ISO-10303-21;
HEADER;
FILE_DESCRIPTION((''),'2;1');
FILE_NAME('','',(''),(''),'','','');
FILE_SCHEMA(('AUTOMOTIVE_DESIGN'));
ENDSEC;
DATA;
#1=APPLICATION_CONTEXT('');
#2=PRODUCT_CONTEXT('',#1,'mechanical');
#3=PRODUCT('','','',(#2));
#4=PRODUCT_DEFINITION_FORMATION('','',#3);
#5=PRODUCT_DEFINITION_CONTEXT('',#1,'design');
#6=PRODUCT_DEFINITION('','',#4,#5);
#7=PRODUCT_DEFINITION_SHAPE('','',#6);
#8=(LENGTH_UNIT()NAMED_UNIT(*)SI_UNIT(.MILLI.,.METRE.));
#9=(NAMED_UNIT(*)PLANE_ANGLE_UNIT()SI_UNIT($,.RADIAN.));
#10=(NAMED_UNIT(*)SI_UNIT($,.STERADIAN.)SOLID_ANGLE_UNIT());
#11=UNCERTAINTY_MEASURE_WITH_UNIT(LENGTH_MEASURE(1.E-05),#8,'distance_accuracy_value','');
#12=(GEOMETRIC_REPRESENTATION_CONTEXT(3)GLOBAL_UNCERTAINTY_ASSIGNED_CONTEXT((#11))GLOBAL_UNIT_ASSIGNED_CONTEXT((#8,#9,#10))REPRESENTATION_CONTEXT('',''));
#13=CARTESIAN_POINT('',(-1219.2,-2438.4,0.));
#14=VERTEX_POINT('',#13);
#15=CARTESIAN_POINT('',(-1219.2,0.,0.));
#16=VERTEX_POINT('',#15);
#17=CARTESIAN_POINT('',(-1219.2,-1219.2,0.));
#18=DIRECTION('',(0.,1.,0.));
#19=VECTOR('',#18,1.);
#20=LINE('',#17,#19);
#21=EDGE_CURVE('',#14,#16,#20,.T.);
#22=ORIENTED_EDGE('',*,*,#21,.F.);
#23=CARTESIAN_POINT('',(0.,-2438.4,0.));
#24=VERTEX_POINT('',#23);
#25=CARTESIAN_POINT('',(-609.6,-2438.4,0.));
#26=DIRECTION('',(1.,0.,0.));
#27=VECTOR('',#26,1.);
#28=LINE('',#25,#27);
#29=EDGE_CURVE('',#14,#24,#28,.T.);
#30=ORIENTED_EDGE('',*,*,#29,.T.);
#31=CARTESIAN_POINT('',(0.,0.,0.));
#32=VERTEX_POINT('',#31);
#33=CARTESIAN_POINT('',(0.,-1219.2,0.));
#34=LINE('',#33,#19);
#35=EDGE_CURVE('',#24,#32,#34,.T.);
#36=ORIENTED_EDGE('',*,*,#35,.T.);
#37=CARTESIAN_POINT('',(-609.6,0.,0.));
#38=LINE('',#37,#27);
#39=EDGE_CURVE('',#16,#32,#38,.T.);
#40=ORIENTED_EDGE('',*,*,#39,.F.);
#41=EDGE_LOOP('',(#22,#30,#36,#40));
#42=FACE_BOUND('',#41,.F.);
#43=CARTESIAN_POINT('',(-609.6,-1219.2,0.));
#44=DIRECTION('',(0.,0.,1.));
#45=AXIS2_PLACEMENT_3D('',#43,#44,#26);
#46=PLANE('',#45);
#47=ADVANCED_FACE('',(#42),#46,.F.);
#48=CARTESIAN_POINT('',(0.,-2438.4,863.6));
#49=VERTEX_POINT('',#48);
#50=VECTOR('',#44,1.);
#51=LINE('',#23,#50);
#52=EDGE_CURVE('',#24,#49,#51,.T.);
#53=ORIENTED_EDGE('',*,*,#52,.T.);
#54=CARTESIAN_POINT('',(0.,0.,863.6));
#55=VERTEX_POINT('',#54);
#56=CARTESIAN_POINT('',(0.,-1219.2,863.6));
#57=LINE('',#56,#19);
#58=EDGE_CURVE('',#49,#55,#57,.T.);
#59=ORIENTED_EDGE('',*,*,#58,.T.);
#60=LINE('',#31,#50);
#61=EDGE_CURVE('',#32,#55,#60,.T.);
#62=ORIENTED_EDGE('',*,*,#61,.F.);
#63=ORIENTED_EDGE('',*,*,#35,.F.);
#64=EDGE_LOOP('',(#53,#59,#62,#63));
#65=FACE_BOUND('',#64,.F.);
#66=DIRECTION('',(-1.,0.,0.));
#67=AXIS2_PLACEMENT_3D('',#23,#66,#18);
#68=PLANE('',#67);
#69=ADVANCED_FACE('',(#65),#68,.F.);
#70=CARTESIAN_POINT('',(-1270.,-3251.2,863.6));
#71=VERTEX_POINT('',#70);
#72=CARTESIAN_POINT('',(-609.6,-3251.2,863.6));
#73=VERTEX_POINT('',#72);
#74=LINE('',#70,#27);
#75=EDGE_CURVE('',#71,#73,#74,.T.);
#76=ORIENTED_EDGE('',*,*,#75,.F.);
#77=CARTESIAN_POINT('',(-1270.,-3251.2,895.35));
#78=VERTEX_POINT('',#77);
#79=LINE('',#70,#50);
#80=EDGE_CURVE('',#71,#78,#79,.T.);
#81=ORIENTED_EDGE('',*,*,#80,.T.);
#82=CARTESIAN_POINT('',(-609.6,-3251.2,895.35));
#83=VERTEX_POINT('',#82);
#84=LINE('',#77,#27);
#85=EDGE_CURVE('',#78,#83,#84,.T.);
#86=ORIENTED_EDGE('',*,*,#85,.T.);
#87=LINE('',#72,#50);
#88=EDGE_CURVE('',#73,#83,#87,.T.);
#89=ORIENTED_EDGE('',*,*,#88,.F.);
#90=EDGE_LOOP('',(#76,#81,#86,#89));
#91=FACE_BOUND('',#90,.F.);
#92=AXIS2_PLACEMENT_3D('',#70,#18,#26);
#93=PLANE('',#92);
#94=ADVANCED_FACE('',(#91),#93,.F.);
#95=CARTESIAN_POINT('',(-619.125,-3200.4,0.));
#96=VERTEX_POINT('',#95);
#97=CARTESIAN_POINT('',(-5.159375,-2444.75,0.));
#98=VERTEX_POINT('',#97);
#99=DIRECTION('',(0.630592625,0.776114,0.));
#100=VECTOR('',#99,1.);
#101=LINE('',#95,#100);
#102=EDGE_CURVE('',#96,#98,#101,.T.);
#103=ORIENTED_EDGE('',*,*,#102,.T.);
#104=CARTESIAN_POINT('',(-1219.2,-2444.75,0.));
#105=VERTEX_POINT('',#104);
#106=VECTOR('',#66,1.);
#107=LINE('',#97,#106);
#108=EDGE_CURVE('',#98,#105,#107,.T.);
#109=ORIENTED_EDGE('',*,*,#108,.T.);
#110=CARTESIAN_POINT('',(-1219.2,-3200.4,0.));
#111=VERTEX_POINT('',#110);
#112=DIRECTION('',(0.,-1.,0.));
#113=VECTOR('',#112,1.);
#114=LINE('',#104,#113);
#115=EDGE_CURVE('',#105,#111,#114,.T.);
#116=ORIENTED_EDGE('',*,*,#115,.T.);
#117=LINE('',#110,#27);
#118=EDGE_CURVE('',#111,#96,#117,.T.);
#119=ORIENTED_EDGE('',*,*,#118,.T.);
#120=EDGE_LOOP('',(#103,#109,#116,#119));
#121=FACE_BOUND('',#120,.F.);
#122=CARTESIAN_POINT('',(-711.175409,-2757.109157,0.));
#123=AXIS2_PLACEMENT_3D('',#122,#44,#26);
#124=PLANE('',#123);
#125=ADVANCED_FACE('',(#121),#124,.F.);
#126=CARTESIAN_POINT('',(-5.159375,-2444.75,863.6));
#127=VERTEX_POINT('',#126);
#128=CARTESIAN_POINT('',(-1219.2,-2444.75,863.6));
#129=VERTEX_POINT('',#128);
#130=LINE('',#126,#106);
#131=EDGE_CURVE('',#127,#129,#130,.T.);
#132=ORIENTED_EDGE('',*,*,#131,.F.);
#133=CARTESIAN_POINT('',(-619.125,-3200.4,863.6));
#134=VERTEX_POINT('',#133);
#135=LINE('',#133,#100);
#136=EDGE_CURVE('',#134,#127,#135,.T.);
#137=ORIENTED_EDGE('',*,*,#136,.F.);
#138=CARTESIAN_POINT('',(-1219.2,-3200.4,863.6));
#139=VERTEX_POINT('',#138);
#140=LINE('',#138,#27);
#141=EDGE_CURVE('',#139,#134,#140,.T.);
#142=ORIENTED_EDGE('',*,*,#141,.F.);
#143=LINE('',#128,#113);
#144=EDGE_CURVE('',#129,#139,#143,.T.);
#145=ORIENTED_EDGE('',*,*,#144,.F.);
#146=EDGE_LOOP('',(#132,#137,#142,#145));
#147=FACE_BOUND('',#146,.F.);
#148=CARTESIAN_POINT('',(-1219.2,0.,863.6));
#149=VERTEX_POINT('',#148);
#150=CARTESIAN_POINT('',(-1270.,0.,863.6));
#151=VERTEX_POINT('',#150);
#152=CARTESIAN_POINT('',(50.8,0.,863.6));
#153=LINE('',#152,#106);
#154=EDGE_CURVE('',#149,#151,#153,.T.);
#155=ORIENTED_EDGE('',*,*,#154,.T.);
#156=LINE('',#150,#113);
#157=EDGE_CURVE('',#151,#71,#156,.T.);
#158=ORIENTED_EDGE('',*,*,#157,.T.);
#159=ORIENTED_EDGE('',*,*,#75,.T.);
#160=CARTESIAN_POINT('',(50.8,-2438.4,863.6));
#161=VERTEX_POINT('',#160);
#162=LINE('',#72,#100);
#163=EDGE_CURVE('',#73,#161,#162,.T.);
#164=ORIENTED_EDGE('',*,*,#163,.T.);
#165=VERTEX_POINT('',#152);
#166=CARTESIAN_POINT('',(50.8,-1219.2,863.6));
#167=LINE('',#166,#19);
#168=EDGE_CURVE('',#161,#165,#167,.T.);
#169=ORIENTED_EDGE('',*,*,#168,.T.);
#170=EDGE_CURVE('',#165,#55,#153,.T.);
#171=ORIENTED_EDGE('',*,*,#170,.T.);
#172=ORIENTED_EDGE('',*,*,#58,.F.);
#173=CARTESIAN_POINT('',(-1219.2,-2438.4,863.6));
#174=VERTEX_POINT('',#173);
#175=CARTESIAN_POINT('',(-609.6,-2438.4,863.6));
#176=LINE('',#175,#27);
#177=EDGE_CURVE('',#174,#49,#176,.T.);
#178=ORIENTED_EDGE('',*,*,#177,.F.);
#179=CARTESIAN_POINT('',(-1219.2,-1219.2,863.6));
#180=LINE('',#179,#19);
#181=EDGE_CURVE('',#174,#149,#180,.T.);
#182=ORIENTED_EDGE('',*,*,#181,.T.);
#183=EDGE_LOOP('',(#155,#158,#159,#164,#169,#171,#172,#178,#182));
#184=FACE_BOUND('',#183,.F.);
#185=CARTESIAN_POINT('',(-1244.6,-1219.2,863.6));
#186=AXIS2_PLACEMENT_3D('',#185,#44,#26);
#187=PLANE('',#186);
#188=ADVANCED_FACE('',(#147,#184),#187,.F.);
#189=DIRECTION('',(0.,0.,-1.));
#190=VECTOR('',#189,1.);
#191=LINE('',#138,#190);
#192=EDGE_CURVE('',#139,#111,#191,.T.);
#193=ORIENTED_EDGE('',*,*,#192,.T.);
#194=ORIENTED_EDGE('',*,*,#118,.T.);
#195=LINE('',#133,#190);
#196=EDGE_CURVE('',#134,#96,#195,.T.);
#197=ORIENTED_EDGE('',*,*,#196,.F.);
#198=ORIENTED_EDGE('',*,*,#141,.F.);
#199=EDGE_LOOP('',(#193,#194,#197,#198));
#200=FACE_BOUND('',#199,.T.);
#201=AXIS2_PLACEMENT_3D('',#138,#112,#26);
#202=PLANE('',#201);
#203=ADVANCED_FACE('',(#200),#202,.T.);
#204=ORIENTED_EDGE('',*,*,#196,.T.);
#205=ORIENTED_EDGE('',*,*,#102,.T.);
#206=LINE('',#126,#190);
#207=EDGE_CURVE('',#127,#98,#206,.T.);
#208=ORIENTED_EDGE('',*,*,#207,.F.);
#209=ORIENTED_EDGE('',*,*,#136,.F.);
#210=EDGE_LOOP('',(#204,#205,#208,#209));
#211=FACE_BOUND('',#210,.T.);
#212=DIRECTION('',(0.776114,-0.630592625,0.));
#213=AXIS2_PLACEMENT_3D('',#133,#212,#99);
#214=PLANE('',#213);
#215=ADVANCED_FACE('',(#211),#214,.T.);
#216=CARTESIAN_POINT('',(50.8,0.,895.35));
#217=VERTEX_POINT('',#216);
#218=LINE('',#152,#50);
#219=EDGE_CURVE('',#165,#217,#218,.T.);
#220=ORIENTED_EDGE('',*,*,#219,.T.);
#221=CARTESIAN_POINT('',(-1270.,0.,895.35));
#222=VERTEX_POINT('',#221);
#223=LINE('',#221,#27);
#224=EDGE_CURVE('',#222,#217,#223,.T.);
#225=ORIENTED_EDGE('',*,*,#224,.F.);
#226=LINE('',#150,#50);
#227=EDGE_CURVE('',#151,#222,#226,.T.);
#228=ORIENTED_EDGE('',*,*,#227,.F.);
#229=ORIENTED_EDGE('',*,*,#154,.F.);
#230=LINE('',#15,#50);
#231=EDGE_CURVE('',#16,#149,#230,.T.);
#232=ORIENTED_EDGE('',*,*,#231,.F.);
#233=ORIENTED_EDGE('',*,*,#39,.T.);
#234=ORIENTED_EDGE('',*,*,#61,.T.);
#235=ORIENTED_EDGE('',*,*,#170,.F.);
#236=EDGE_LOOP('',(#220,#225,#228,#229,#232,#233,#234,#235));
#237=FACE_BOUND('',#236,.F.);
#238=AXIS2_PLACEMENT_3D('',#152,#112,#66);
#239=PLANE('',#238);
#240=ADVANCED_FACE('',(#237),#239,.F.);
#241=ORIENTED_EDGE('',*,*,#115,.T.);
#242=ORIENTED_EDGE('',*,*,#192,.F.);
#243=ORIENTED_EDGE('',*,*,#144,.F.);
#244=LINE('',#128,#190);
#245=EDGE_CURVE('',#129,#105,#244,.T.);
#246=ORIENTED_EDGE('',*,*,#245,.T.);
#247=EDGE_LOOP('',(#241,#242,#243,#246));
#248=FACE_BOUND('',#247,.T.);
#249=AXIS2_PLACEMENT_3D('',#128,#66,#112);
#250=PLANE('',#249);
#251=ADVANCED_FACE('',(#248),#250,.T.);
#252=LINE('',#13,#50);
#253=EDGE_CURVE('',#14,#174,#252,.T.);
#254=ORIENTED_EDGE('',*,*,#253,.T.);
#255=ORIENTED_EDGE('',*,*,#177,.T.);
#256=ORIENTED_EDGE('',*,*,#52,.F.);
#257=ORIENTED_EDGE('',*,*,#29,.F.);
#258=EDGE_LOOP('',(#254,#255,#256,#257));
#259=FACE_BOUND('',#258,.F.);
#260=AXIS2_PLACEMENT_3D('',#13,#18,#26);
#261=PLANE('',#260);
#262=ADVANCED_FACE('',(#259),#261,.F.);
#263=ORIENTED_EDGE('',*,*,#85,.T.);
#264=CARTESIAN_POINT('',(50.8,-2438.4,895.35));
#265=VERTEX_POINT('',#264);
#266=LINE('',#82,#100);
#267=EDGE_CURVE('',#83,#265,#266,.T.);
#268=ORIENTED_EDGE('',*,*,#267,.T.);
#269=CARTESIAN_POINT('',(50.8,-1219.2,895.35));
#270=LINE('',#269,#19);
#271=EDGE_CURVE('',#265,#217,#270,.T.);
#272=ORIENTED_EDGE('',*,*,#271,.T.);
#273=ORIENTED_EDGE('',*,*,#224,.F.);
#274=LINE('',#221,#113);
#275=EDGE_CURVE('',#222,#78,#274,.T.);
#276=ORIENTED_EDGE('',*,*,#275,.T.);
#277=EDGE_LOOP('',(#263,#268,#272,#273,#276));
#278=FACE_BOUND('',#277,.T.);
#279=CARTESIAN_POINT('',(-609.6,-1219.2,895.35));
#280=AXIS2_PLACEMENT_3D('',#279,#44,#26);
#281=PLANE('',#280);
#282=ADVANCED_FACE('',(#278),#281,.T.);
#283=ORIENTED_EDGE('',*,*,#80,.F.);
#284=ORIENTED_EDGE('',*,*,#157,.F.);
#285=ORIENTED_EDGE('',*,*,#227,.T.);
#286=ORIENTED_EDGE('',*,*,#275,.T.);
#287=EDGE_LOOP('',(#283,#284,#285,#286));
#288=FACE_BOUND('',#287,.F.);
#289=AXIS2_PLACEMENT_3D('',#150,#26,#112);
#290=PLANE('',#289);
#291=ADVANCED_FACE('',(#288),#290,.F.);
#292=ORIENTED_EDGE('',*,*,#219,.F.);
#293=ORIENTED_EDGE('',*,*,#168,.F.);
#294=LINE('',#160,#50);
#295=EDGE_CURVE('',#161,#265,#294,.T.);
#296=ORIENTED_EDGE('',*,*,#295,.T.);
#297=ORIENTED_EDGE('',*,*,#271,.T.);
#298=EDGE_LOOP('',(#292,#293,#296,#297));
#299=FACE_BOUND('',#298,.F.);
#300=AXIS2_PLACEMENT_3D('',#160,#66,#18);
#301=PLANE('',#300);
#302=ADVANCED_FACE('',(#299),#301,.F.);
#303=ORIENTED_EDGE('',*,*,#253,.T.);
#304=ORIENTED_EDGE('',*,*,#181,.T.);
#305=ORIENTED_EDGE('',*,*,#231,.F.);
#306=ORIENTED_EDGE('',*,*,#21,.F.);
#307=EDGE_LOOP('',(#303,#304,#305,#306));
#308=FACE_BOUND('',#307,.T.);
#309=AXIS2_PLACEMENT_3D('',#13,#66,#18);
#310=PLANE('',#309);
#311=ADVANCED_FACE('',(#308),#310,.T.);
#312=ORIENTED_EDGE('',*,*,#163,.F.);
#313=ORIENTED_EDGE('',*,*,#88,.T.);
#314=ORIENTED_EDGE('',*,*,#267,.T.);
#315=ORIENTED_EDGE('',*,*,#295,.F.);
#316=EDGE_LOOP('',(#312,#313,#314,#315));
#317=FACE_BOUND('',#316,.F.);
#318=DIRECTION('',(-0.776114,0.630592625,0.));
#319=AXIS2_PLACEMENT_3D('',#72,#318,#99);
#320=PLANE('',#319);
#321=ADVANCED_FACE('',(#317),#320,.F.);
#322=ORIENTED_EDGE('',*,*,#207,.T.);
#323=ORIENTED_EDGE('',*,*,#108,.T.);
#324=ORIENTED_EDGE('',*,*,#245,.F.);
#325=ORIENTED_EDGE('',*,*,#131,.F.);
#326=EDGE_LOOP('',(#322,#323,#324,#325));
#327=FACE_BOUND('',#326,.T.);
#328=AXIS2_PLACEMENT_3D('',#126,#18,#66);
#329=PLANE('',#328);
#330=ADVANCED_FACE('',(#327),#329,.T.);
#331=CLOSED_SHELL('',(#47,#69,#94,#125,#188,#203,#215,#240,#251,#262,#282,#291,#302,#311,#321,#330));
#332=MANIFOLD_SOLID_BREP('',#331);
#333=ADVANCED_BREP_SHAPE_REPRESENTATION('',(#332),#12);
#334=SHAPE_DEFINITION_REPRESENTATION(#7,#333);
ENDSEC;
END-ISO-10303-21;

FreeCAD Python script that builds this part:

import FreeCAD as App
import Part
import Sketcher
Q = App.Units.Quantity


def add_polygon(sketch, points):
    """Adds a closed chain of lines whose ends are joined by coincident constraints."""
    first, n = sketch.GeometryCount, len(points)
    for a, b in zip(points, points[1:] + points[:1]):
        sketch.addGeometry(Part.LineSegment(App.Vector(*a, 0), App.Vector(*b, 0)), False)
    for i in range(n):
        sketch.addConstraint(Sketcher.Constraint("Coincident", first + i, 2, first + (i + 1) % n, 1))

doc = App.newDocument("Part")
params = doc.addObject("Spreadsheet::Sheet", "Params")
for row, (alias, value) in enumerate([
    ("sketch1_width", "48 in"),
    ("sketch1_height", "96 in"),
    ("pad1_length", "34 in"),
    ("sketch2_width", "52 in"),
    ("sketch2_width2", "26 in"),
    ("sketch2_height", "128 in"),
    ("sketch2_height2", "96 in"),
    ("pad2_length", "1.25 in"),
    ("sketch3_width", "48 in"),
    ("sketch3_height", "96 in"),
    ("pad3_length", "1.25 in"),
    ("sketch4_height", "29.75 in"),
    ("sketch4_width", "47.796875 in"),
    ("sketch4_width2", "23.625 in"),
    ("pad4_length", "34 in"),
], start=1):
    params.set(f"A{row}", alias)
    params.set(f"B{row}", "=" + value)
    params.setAlias(f"B{row}", alias)

body = doc.addObject("PartDesign::Body", "Body")

# Sketch on XY plane
sketch1 = doc.addObject("Sketcher::SketchObject", "Sketch")
body.addObject(sketch1)
sketch1.AttachmentSupport = (doc.XY_Plane, [""])
sketch1.MapMode = "FlatFace"
add_polygon(sketch1, [(-1219, 0), (-1219, -2438), (0, -2438), (0, 0)])  # lines 0-3
sketch1.addConstraint([
    Sketcher.Constraint("Vertical", 0),
    Sketcher.Constraint("Horizontal", 1),
    Sketcher.Constraint("Vertical", 2),
    Sketcher.Constraint("Horizontal", 3),
    Sketcher.Constraint("Coincident", 2, 2, -1, 1),
    Sketcher.Constraint("DistanceX", 1, 1, 1, 2, Q("48 in")),
    Sketcher.Constraint("DistanceY", 0, 2, 0, 1, Q("96 in")),
])
sketch1.setExpression("Constraints[9]", "Params.sketch1_width")
sketch1.setExpression("Constraints[10]", "Params.sketch1_height")
pad1 = doc.addObject("PartDesign::Pad", "Pad")
body.addObject(pad1)
pad1.Profile = sketch1
pad1.setExpression("Length", "Params.pad1_length")

# Sketch on XY plane
sketch2 = doc.addObject("Sketcher::SketchObject", "Sketch001")
body.addObject(sketch2)
sketch2.AttachmentSupport = (doc.XY_Plane, [""])
sketch2.MapMode = "FlatFace"
sketch2.AttachmentOffset = App.Placement(App.Vector(0, 0, 34 * 25.4), App.Rotation())
add_polygon(sketch2, [(51, 0), (-1270, 0), (-1270, -3251), (-610, -3251), (51, -2438)])  # lines 0-4
sketch2.addConstraint([
    Sketcher.Constraint("Horizontal", 0),
    Sketcher.Constraint("Vertical", 1),
    Sketcher.Constraint("Horizontal", 2),
    Sketcher.Constraint("Vertical", 4),
    Sketcher.Constraint("PointOnObject", 0, 2, -1),
    Sketcher.Constraint("DistanceX", 0, 2, 0, 1, Q("52 in")),
    Sketcher.Constraint("DistanceX", 2, 1, 2, 2, Q("26 in")),
    Sketcher.Constraint("DistanceY", 1, 2, 1, 1, Q("128 in")),
    Sketcher.Constraint("DistanceY", 4, 1, 4, 2, Q("96 in")),
    Sketcher.Constraint("DistanceX", 0, 2, -1, 1, Q("50 in")),
])
sketch2.setExpression("Constraints[10]", "Params.sketch2_width")
sketch2.setExpression("Constraints[11]", "Params.sketch2_width2")
sketch2.setExpression("Constraints[12]", "Params.sketch2_height")
sketch2.setExpression("Constraints[13]", "Params.sketch2_height2")
pad2 = doc.addObject("PartDesign::Pad", "Pad001")
body.addObject(pad2)
pad2.Profile = sketch2
pad2.setExpression("Length", "Params.pad2_length")

# Sketch on XY plane
sketch3 = doc.addObject("Sketcher::SketchObject", "Sketch002")
body.addObject(sketch3)
sketch3.AttachmentSupport = (doc.XY_Plane, [""])
sketch3.MapMode = "FlatFace"
sketch3.AttachmentOffset = App.Placement(App.Vector(0, 0, 34 * 25.4), App.Rotation())
add_polygon(sketch3, [(-1219, 0), (-1219, -2438), (0, -2438), (0, 0)])  # lines 0-3
sketch3.addConstraint([
    Sketcher.Constraint("Vertical", 0),
    Sketcher.Constraint("Horizontal", 1),
    Sketcher.Constraint("Vertical", 2),
    Sketcher.Constraint("Horizontal", 3),
    Sketcher.Constraint("Coincident", 2, 2, -1, 1),
    Sketcher.Constraint("DistanceX", 1, 1, 1, 2, Q("48 in")),
    Sketcher.Constraint("DistanceY", 0, 2, 0, 1, Q("96 in")),
])
sketch3.setExpression("Constraints[9]", "Params.sketch3_width")
sketch3.setExpression("Constraints[10]", "Params.sketch3_height")
pad3 = doc.addObject("PartDesign::Pad", "Pad002")
body.addObject(pad3)
pad3.Profile = sketch3
pad3.setExpression("Length", "Params.pad3_length")

# Sketch on XY plane
sketch4 = doc.addObject("Sketcher::SketchObject", "Sketch003")
body.addObject(sketch4)
sketch4.AttachmentSupport = (doc.XY_Plane, [""])
sketch4.MapMode = "FlatFace"
sketch4.AttachmentOffset = App.Placement(App.Vector(0, 0, 34 * 25.4), App.Rotation())
add_polygon(sketch4, [(-619, -3200), (-5, -2445), (-1219, -2445), (-1219, -3200)])  # lines 0-3
sketch4.addConstraint([
    Sketcher.Constraint("Horizontal", 1),
    Sketcher.Constraint("Vertical", 2),
    Sketcher.Constraint("Horizontal", 3),
    Sketcher.Constraint("DistanceX", 1, 2, -1, 1, Q("48 in")),
    Sketcher.Constraint("DistanceY", 2, 2, -1, 1, Q("126 in")),
    Sketcher.Constraint("DistanceY", 2, 2, 2, 1, Q("29.75 in")),
    Sketcher.Constraint("DistanceX", 1, 2, 1, 1, Q("47.796875 in")),
    Sketcher.Constraint("DistanceX", 3, 1, 3, 2, Q("23.625 in")),
])
sketch4.setExpression("Constraints[9]", "Params.sketch4_height")
sketch4.setExpression("Constraints[10]", "Params.sketch4_width")
sketch4.setExpression("Constraints[11]", "Params.sketch4_width2")
pad4 = doc.addObject("PartDesign::Pad", "Pad003")
body.addObject(pad4)
pad4.Profile = sketch4
pad4.setExpression("Length", "Params.pad4_length")
pad4.Reversed = True

doc.recompute()
